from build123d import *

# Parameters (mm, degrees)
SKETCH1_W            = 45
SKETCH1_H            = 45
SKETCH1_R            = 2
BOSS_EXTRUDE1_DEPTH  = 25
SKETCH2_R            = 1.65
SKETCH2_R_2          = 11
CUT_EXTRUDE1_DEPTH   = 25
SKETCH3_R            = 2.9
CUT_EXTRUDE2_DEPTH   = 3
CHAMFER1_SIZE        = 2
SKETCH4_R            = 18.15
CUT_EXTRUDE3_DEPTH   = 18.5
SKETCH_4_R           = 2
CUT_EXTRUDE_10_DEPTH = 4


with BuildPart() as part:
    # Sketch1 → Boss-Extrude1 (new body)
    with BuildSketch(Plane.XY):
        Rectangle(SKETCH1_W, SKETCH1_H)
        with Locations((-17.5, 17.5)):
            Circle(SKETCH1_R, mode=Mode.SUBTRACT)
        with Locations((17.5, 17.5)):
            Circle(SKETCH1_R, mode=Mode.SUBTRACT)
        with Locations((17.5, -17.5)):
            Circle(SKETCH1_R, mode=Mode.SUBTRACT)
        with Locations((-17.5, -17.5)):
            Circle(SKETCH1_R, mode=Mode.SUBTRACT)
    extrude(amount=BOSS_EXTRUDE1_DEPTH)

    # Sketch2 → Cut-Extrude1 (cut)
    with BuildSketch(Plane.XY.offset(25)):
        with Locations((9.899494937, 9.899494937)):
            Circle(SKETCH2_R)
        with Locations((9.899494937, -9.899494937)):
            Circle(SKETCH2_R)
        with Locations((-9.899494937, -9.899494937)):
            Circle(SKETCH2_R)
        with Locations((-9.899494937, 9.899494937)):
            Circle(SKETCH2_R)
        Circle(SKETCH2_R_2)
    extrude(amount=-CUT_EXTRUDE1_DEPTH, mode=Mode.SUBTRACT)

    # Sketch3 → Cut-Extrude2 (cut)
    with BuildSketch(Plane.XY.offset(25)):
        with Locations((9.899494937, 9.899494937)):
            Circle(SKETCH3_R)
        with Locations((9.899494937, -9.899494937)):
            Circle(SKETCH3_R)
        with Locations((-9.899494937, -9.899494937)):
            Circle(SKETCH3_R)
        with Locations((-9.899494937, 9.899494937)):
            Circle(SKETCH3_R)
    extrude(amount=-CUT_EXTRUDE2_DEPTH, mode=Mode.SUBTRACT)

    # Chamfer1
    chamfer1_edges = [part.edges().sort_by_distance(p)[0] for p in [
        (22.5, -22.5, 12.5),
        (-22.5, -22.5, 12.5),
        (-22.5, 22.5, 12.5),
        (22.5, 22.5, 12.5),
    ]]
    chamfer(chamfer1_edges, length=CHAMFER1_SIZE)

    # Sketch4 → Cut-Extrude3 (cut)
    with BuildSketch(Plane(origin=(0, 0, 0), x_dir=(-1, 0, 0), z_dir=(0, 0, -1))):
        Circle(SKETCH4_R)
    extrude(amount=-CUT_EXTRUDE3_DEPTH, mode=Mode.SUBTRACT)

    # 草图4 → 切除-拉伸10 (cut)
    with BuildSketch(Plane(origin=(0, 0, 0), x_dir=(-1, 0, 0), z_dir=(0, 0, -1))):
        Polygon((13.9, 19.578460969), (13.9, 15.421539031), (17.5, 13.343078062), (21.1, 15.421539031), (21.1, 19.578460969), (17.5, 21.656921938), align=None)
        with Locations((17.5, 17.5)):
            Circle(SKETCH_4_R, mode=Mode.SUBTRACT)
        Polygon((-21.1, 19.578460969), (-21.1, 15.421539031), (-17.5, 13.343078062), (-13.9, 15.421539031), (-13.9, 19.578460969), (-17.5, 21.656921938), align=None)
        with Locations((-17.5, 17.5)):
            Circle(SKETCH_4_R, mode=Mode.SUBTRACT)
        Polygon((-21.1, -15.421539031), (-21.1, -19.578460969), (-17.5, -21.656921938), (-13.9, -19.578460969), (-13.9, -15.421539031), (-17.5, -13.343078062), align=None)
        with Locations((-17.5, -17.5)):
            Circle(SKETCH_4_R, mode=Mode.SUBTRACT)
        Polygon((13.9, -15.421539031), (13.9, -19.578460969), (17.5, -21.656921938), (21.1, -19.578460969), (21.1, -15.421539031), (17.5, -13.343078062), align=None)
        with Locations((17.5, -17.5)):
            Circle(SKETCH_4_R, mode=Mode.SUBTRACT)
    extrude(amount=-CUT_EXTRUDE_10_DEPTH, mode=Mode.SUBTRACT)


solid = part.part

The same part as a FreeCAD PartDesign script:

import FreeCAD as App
import Part
import Sketcher
Q = App.Units.Quantity


def edges_at(feature, points):
    """Names of the edges that pass closest to the given points."""
    edges = feature.Shape.Edges
    near = lambda p: min(range(len(edges)), key=lambda i: edges[i].distToShape(Part.Vertex(*p))[0])
    return sorted({f"Edge{near(p) + 1}" for p in points})

doc = App.newDocument("Part")
body = doc.addObject("PartDesign::Body", "Body")

sketch1 = body.newObject("Sketcher::SketchObject", "Sketch")
sketch1.AttachmentSupport = (doc.getObject("XY_Plane"), [""])
sketch1.MapMode = "FlatFace"
sketch1.addGeometry(Part.LineSegment(App.Vector(-22.5, 22.5, 0), App.Vector(-22.5, -22.5, 0)), False)
sketch1.addGeometry(Part.LineSegment(App.Vector(-22.5, -22.5, 0), App.Vector(22.5, -22.5, 0)), False)
sketch1.addGeometry(Part.LineSegment(App.Vector(22.5, -22.5, 0), App.Vector(22.5, 22.5, 0)), False)
sketch1.addGeometry(Part.LineSegment(App.Vector(22.5, 22.5, 0), App.Vector(-22.5, 22.5, 0)), False)
sketch1.addGeometry(Part.Circle(App.Vector(-17.5, -17.5, 0), App.Vector(0, 0, 1), 2), False)
sketch1.addGeometry(Part.Circle(App.Vector(17.5, -17.5, 0), App.Vector(0, 0, 1), 2), False)
sketch1.addGeometry(Part.Circle(App.Vector(-17.5, 17.5, 0), App.Vector(0, 0, 1), 2), False)
sketch1.addGeometry(Part.Circle(App.Vector(17.5, 17.5, 0), App.Vector(0, 0, 1), 2), False)
sketch1.addConstraint(Sketcher.Constraint("Coincident", 0, 2, 1, 1))
sketch1.addConstraint(Sketcher.Constraint("Coincident", 1, 2, 2, 1))
sketch1.addConstraint(Sketcher.Constraint("Coincident", 2, 2, 3, 1))
sketch1.addConstraint(Sketcher.Constraint("Coincident", 3, 2, 0, 1))
sketch1.addConstraint(Sketcher.Constraint("Vertical", 0))
sketch1.addConstraint(Sketcher.Constraint("Horizontal", 1))
sketch1.addConstraint(Sketcher.Constraint("Vertical", 2))
sketch1.addConstraint(Sketcher.Constraint("Horizontal", 3))
sketch1.addConstraint(Sketcher.Constraint("Equal", 4, 5))
sketch1.addConstraint(Sketcher.Constraint("Equal", 5, 6))
sketch1.addConstraint(Sketcher.Constraint("Equal", 6, 7))
sketch1.addConstraint(Sketcher.Constraint("Symmetric", 5, 3, 6, 3, -1, 1))
sketch1.addConstraint(Sketcher.Constraint("Symmetric", 4, 3, 7, 3, -1, 1))
sketch1.addConstraint(Sketcher.Constraint("Symmetric", 0, 2, 2, 2, -1, 1))
sketch1.addConstraint(Sketcher.Constraint("Symmetric", 4, 3, 5, 3, -2))
sketch1.addConstraint(Sketcher.Constraint("Equal", 3, 0))
sketch1.addConstraint(Sketcher.Constraint("Diameter", 4, 4.0))
sketch1.addConstraint(Sketcher.Constraint("DistanceX", 1, 1, 1, 2, 45.0))
sketch1.addConstraint(Sketcher.Constraint("DistanceX", 4, 3, 5, 3, 35.0))
sketch1.addConstraint(Sketcher.Constraint("DistanceY", 4, 3, 6, 3, 35.0))
pad1 = body.newObject("PartDesign::Pad", "Pad")
pad1.Profile = sketch1
pad1.Length = 25

sketch2 = body.newObject("Sketcher::SketchObject", "Sketch001")
sketch2.AttachmentSupport = (doc.getObject("XY_Plane"), [""])
sketch2.MapMode = "FlatFace"
sketch2.AttachmentOffset = App.Placement(App.Vector(0, 0, 25), App.Rotation())
sketch2.addGeometry(Part.Circle(App.Vector(9.9, 9.9, 0), App.Vector(0, 0, 1), 1.6), False)
sketch2.addGeometry(Part.Circle(App.Vector(9.9, -9.9, 0), App.Vector(0, 0, 1), 1.6), False)
sketch2.addGeometry(Part.Circle(App.Vector(-9.9, -9.9, 0), App.Vector(0, 0, 1), 1.6), False)
sketch2.addGeometry(Part.Circle(App.Vector(-9.9, 9.9, 0), App.Vector(0, 0, 1), 1.6), False)
sketch2.addGeometry(Part.Circle(App.Vector(0, 0, 0), App.Vector(0, 0, 1), 11), False)
sketch2.addConstraint(Sketcher.Constraint("Coincident", 4, 3, -1, 1))
sketch2.addConstraint(Sketcher.Constraint("Equal", 0, 1))
sketch2.addConstraint(Sketcher.Constraint("Equal", 1, 2))
sketch2.addConstraint(Sketcher.Constraint("Equal", 2, 3))
sketch2.addConstraint(Sketcher.Constraint("Symmetric", 0, 3, 2, 3, -1, 1))
sketch2.addConstraint(Sketcher.Constraint("Symmetric", 1, 3, 3, 3, -1, 1))
sketch2.addConstraint(Sketcher.Constraint("Symmetric", 1, 3, 2, 3, -2))
sketch2.addConstraint(Sketcher.Constraint("Diameter", 4, 22.0))
sketch2.addConstraint(Sketcher.Constraint("Diameter", 0, 3.3))
sketch2.addConstraint(Sketcher.Constraint("DistanceY", 1, 3, 0, 3, 19.79899))
sketch2.addConstraint(Sketcher.Constraint("DistanceX", 2, 3, 1, 3, 19.79899))
pocket1 = body.newObject("PartDesign::Pocket", "Pocket")
pocket1.Profile = sketch2
pocket1.Length = 25

sketch3 = body.newObject("Sketcher::SketchObject", "Sketch002")
sketch3.AttachmentSupport = (doc.getObject("XY_Plane"), [""])
sketch3.MapMode = "FlatFace"
sketch3.AttachmentOffset = App.Placement(App.Vector(0, 0, 25), App.Rotation())
sketch3.addGeometry(Part.Circle(App.Vector(9.9, 9.9, 0), App.Vector(0, 0, 1), 2.9), False)
sketch3.addGeometry(Part.Circle(App.Vector(9.9, -9.9, 0), App.Vector(0, 0, 1), 2.9), False)
sketch3.addGeometry(Part.Circle(App.Vector(-9.9, -9.9, 0), App.Vector(0, 0, 1), 2.9), False)
sketch3.addGeometry(Part.Circle(App.Vector(-9.9, 9.9, 0), App.Vector(0, 0, 1), 2.9), False)
sketch3.addConstraint(Sketcher.Constraint("Equal", 0, 1))
sketch3.addConstraint(Sketcher.Constraint("Equal", 1, 2))
sketch3.addConstraint(Sketcher.Constraint("Equal", 2, 3))
sketch3.addConstraint(Sketcher.Constraint("Symmetric", 0, 3, 2, 3, -1, 1))
sketch3.addConstraint(Sketcher.Constraint("Symmetric", 1, 3, 3, 3, -1, 1))
sketch3.addConstraint(Sketcher.Constraint("Symmetric", 1, 3, 2, 3, -2))
sketch3.addConstraint(Sketcher.Constraint("Diameter", 0, 5.8))
sketch3.addConstraint(Sketcher.Constraint("DistanceY", 1, 3, 0, 3, 19.79899))
sketch3.addConstraint(Sketcher.Constraint("DistanceX", 2, 3, 1, 3, 19.79899))
pocket2 = body.newObject("PartDesign::Pocket", "Pocket001")
pocket2.Profile = sketch3
pocket2.Length = 3
doc.recompute()

chamfer = body.newObject("PartDesign::Chamfer", "Chamfer")
chamfer.Base = (pocket2, edges_at(pocket2, [
    (22.5, -22.5, 12.5),
    (-22.5, -22.5, 12.5),
    (-22.5, 22.5, 12.5),
    (22.5, 22.5, 12.5),
]))
chamfer.Size = 2

sketch4 = body.newObject("Sketcher::SketchObject", "Sketch003")
sketch4.AttachmentSupport = (doc.getObject("XY_Plane"), [""])
sketch4.MapMode = "FlatFace"
sketch4.addGeometry(Part.Circle(App.Vector(0, 0, 0), App.Vector(0, 0, 1), 18), False)
sketch4.addConstraint(Sketcher.Constraint("Coincident", 0, 3, -1, 1))
sketch4.addConstraint(Sketcher.Constraint("Diameter", 0, 36.3))
pocket3 = body.newObject("PartDesign::Pocket", "Pocket002")
pocket3.Profile = sketch4
pocket3.Length = 18.5
pocket3.Reversed = True

sketch5 = body.newObject("Sketcher::SketchObject", "Sketch004")
sketch5.AttachmentSupport = (doc.getObject("XY_Plane"), [""])
sketch5.MapMode = "FlatFace"
sketch5.addGeometry(Part.LineSegment(App.Vector(-13.9, 19.6, 0), App.Vector(-13.9, 15.4, 0)), False)
sketch5.addGeometry(Part.LineSegment(App.Vector(-13.9, 15.4, 0), App.Vector(-17.5, 13.3, 0)), False)
sketch5.addGeometry(Part.LineSegment(App.Vector(-17.5, 13.3, 0), App.Vector(-21.1, 15.4, 0)), False)
sketch5.addGeometry(Part.LineSegment(App.Vector(-21.1, 15.4, 0), App.Vector(-21.1, 19.6, 0)), False)
sketch5.addGeometry(Part.LineSegment(App.Vector(-21.1, 19.6, 0), App.Vector(-17.5, 21.7, 0)), False)
sketch5.addGeometry(Part.LineSegment(App.Vector(-17.5, 21.7, 0), App.Vector(-13.9, 19.6, 0)), False)
sketch5.addGeometry(Part.Circle(App.Vector(-17.5, 17.5, 0), App.Vector(0, 0, 1), 2), False)
sketch5.addGeometry(Part.LineSegment(App.Vector(21.1, 19.6, 0), App.Vector(21.1, 15.4, 0)), False)
sketch5.addGeometry(Part.LineSegment(App.Vector(21.1, 15.4, 0), App.Vector(17.5, 13.3, 0)), False)
sketch5.addGeometry(Part.LineSegment(App.Vector(17.5, 13.3, 0), App.Vector(13.9, 15.4, 0)), False)
sketch5.addGeometry(Part.LineSegment(App.Vector(13.9, 15.4, 0), App.Vector(13.9, 19.6, 0)), False)
sketch5.addGeometry(Part.LineSegment(App.Vector(13.9, 19.6, 0), App.Vector(17.5, 21.7, 0)), False)
sketch5.addGeometry(Part.LineSegment(App.Vector(17.5, 21.7, 0), App.Vector(21.1, 19.6, 0)), False)
sketch5.addGeometry(Part.Circle(App.Vector(17.5, 17.5, 0), App.Vector(0, 0, 1), 2), False)
sketch5.addGeometry(Part.LineSegment(App.Vector(21.1, -15.4, 0), App.Vector(21.1, -19.6, 0)), False)
sketch5.addGeometry(Part.LineSegment(App.Vector(21.1, -19.6, 0), App.Vector(17.5, -21.7, 0)), False)
sketch5.addGeometry(Part.LineSegment(App.Vector(17.5, -21.7, 0), App.Vector(13.9, -19.6, 0)), False)
sketch5.addGeometry(Part.LineSegment(App.Vector(13.9, -19.6, 0), App.Vector(13.9, -15.4, 0)), False)
sketch5.addGeometry(Part.LineSegment(App.Vector(13.9, -15.4, 0), App.Vector(17.5, -13.3, 0)), False)
sketch5.addGeometry(Part.LineSegment(App.Vector(17.5, -13.3, 0), App.Vector(21.1, -15.4, 0)), False)
sketch5.addGeometry(Part.Circle(App.Vector(17.5, -17.5, 0), App.Vector(0, 0, 1), 2), False)
sketch5.addGeometry(Part.LineSegment(App.Vector(-13.9, -15.4, 0), App.Vector(-13.9, -19.6, 0)), False)
sketch5.addGeometry(Part.LineSegment(App.Vector(-13.9, -19.6, 0), App.Vector(-17.5, -21.7, 0)), False)
sketch5.addGeometry(Part.LineSegment(App.Vector(-17.5, -21.7, 0), App.Vector(-21.1, -19.6, 0)), False)
sketch5.addGeometry(Part.LineSegment(App.Vector(-21.1, -19.6, 0), App.Vector(-21.1, -15.4, 0)), False)
sketch5.addGeometry(Part.LineSegment(App.Vector(-21.1, -15.4, 0), App.Vector(-17.5, -13.3, 0)), False)
sketch5.addGeometry(Part.LineSegment(App.Vector(-17.5, -13.3, 0), App.Vector(-13.9, -15.4, 0)), False)
sketch5.addGeometry(Part.Circle(App.Vector(-17.5, -17.5, 0), App.Vector(0, 0, 1), 2), False)
sketch5.addConstraint(Sketcher.Constraint("Coincident", 0, 2, 1, 1))
sketch5.addConstraint(Sketcher.Constraint("Coincident", 1, 2, 2, 1))
sketch5.addConstraint(Sketcher.Constraint("Coincident", 2, 2, 3, 1))
sketch5.addConstraint(Sketcher.Constraint("Coincident", 3, 2, 4, 1))
sketch5.addConstraint(Sketcher.Constraint("Coincident", 4, 2, 5, 1))
sketch5.addConstraint(Sketcher.Constraint("Coincident", 5, 2, 0, 1))
sketch5.addConstraint(Sketcher.Constraint("Coincident", 7, 2, 8, 1))
sketch5.addConstraint(Sketcher.Constraint("Coincident", 8, 2, 9, 1))
sketch5.addConstraint(Sketcher.Constraint("Coincident", 9, 2, 10, 1))
sketch5.addConstraint(Sketcher.Constraint("Coincident", 10, 2, 11, 1))
sketch5.addConstraint(Sketcher.Constraint("Coincident", 11, 2, 12, 1))
sketch5.addConstraint(Sketcher.Constraint("Coincident", 12, 2, 7, 1))
sketch5.addConstraint(Sketcher.Constraint("Coincident", 14, 2, 15, 1))
sketch5.addConstraint(Sketcher.Constraint("Coincident", 15, 2, 16, 1))
sketch5.addConstraint(Sketcher.Constraint("Coincident", 16, 2, 17, 1))
sketch5.addConstraint(Sketcher.Constraint("Coincident", 17, 2, 18, 1))
sketch5.addConstraint(Sketcher.Constraint("Coincident", 18, 2, 19, 1))
sketch5.addConstraint(Sketcher.Constraint("Coincident", 19, 2, 14, 1))
sketch5.addConstraint(Sketcher.Constraint("Coincident", 21, 2, 22, 1))
sketch5.addConstraint(Sketcher.Constraint("Coincident", 22, 2, 23, 1))
sketch5.addConstraint(Sketcher.Constraint("Coincident", 23, 2, 24, 1))
sketch5.addConstraint(Sketcher.Constraint("Coincident", 24, 2, 25, 1))
sketch5.addConstraint(Sketcher.Constraint("Coincident", 25, 2, 26, 1))
sketch5.addConstraint(Sketcher.Constraint("Coincident", 26, 2, 21, 1))
sketch5.addConstraint(Sketcher.Constraint("Vertical", 0))
sketch5.addConstraint(Sketcher.Constraint("Vertical", 3))
sketch5.addConstraint(Sketcher.Constraint("Vertical", 7))
sketch5.addConstraint(Sketcher.Constraint("Vertical", 10))
sketch5.addConstraint(Sketcher.Constraint("Vertical", 14))
sketch5.addConstraint(Sketcher.Constraint("Vertical", 17))
sketch5.addConstraint(Sketcher.Constraint("Vertical", 21))
sketch5.addConstraint(Sketcher.Constraint("Vertical", 24))
sketch5.addConstraint(Sketcher.Constraint("Equal", 6, 13))
sketch5.addConstraint(Sketcher.Constraint("Equal", 13, 20))
sketch5.addConstraint(Sketcher.Constraint("Equal", 20, 27))
sketch5.addConstraint(Sketcher.Constraint("Symmetric", 6, 3, 20, 3, -1, 1))
sketch5.addConstraint(Sketcher.Constraint("Symmetric", 13, 3, 27, 3, -1, 1))
sketch5.addConstraint(Sketcher.Constraint("Symmetric", 3, 2, 14, 2, -1, 1))
sketch5.addConstraint(Sketcher.Constraint("Symmetric", 4, 2, 15, 2, -1, 1))
sketch5.addConstraint(Sketcher.Constraint("Symmetric", 5, 2, 16, 2, -1, 1))
sketch5.addConstraint(Sketcher.Constraint("Symmetric", 1, 2, 18, 2, -1, 1))
sketch5.addConstraint(Sketcher.Constraint("Symmetric", 10, 2, 21, 2, -1, 1))
sketch5.addConstraint(Sketcher.Constraint("Symmetric", 11, 2, 22, 2, -1, 1))
sketch5.addConstraint(Sketcher.Constraint("Symmetric", 12, 2, 23, 2, -1, 1))
sketch5.addConstraint(Sketcher.Constraint("Symmetric", 8, 2, 25, 2, -1, 1))
sketch5.addConstraint(Sketcher.Constraint("Symmetric", 6, 3, 13, 3, -2))
sketch5.addConstraint(Sketcher.Constraint("Symmetric", 2, 2, 7, 2, -2))
sketch5.addConstraint(Sketcher.Constraint("Symmetric", 1, 2, 8, 2, -2))
sketch5.addConstraint(Sketcher.Constraint("Symmetric", 0, 2, 9, 2, -2))
sketch5.addConstraint(Sketcher.Constraint("Symmetric", 4, 2, 11, 2, -2))
sketch5.addConstraint(Sketcher.Constraint("Parallel", 1, 4))
sketch5.addConstraint(Sketcher.Constraint("Parallel", 2, 5))
sketch5.addConstraint(Sketcher.Constraint("Parallel", 4, 8))
sketch5.addConstraint(Sketcher.Constraint("Parallel", 8, 11))
sketch5.addConstraint(Sketcher.Constraint("Parallel", 9, 12))
sketch5.addConstraint(Sketcher.Constraint("Parallel", 15, 18))
sketch5.addConstraint(Sketcher.Constraint("Parallel", 16, 19))
sketch5.addConstraint(Sketcher.Constraint("Parallel", 22, 25))
sketch5.addConstraint(Sketcher.Constraint("Parallel", 23, 26))
sketch5.addConstraint(Sketcher.Constraint("Horizontal", 0, 2, 2, 2))
sketch5.addConstraint(Sketcher.Constraint("Horizontal", 3, 2, 5, 2))
sketch5.addConstraint(Sketcher.Constraint("Vertical", 27, 3, 1, 2))
sketch5.addConstraint(Sketcher.Constraint("Diameter", 6, 4.0))
sketch5.addConstraint(Sketcher.Constraint("Angle", 1, Q("-150 deg")))
sketch5.addConstraint(Sketcher.Constraint("DistanceX", 6, 3, 13, 3, 35.0))
sketch5.addConstraint(Sketcher.Constraint("DistanceY", 20, 3, 13, 3, 35.0))
sketch5.addConstraint(Sketcher.Constraint("DistanceY", 14, 2, 7, 2, 35.0))
sketch5.addConstraint(Sketcher.Constraint("DistanceX", 0, 2, -1, 1, 13.9))
sketch5.addConstraint(Sketcher.Constraint("DistanceY", 0, 2, 0, 1, 4.156922))
pocket4 = body.newObject("PartDesign::Pocket", "Pocket003")
pocket4.Profile = sketch5
pocket4.Length = 4
pocket4.Reversed = True

doc.recompute()
